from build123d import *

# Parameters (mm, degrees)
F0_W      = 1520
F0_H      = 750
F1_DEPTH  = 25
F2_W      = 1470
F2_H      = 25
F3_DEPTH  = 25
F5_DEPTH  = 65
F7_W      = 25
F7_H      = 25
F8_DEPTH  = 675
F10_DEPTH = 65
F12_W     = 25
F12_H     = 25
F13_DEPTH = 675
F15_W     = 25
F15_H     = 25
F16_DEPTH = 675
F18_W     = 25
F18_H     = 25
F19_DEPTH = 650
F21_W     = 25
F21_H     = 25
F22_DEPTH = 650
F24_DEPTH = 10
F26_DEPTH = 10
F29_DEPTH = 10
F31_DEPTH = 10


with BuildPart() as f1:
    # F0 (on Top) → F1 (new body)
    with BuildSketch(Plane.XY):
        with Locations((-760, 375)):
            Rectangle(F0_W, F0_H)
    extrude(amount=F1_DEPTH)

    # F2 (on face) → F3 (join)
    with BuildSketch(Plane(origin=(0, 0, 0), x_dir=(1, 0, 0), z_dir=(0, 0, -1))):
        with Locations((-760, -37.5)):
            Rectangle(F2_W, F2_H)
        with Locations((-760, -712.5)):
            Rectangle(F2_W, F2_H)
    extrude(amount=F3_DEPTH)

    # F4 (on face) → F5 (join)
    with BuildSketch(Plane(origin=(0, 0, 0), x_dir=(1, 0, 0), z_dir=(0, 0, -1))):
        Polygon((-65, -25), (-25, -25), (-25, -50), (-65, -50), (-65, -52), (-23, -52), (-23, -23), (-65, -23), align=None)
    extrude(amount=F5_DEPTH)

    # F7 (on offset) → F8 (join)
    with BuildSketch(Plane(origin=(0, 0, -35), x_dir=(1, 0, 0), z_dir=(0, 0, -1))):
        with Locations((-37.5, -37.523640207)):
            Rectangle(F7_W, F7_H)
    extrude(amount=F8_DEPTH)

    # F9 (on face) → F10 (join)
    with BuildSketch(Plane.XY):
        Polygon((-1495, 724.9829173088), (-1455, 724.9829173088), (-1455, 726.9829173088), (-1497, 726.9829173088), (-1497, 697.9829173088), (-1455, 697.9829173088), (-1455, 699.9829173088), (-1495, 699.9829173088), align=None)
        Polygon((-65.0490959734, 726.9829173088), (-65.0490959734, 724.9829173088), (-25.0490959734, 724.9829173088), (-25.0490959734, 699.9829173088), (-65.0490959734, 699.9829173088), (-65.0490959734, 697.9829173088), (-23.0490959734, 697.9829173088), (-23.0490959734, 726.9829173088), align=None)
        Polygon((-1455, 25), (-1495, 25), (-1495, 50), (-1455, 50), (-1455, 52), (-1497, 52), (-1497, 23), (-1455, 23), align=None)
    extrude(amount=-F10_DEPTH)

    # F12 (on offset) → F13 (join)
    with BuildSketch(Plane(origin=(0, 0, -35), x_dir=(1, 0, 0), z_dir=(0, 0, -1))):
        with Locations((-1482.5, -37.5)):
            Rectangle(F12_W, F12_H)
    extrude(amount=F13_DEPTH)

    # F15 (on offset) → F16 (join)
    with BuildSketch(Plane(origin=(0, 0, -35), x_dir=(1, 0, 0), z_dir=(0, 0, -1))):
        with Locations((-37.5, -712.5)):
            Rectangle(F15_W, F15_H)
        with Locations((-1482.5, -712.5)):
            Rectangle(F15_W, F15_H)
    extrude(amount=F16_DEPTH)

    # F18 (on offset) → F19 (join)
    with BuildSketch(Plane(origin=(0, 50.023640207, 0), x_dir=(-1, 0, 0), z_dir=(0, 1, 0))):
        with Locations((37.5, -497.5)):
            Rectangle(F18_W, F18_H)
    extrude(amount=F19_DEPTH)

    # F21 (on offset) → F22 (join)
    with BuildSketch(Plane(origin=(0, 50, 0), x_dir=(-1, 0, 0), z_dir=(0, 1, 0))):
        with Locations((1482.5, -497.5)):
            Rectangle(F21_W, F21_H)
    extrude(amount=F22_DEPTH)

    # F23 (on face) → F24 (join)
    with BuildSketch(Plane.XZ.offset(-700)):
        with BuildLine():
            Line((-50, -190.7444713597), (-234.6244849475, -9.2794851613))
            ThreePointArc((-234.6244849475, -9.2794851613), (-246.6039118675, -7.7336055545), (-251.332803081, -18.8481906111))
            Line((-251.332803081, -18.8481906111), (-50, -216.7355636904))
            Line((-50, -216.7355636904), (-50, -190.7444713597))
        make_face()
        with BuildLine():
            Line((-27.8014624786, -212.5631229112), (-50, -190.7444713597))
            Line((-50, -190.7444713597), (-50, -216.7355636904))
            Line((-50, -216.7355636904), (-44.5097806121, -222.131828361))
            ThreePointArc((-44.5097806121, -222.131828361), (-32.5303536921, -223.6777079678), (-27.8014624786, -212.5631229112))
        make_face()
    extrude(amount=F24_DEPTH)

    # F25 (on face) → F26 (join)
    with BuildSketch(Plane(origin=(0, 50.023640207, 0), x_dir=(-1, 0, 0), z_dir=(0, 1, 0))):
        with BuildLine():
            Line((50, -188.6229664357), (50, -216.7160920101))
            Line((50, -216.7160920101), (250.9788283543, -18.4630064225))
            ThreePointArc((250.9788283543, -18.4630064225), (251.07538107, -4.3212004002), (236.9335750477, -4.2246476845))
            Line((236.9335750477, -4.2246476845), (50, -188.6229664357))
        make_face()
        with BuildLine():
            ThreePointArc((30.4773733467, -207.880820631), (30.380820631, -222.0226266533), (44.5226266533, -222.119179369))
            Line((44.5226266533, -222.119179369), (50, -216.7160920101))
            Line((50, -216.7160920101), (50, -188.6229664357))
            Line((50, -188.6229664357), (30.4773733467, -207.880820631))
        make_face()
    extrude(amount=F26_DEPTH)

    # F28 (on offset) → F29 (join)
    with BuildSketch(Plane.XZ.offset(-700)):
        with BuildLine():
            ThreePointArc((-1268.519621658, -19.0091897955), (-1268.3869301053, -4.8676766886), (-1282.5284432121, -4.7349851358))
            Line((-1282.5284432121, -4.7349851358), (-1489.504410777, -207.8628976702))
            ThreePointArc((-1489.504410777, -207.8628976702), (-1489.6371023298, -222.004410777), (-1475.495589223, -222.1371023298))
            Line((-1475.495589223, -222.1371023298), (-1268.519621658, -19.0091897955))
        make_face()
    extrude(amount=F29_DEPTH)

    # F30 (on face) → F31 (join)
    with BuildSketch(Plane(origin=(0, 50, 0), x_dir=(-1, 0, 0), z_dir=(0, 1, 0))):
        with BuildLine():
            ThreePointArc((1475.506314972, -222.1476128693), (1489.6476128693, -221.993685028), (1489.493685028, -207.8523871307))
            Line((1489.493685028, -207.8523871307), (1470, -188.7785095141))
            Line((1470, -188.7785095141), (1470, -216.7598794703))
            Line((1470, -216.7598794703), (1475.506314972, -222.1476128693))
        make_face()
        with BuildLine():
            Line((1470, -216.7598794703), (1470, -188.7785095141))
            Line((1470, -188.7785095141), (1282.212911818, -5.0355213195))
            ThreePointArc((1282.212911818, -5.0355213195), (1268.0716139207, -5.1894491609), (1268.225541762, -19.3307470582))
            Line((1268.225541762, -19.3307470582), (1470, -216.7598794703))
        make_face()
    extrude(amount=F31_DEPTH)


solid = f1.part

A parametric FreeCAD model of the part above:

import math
import FreeCAD as App
import Part
import Sketcher
from FreeCAD import Vector


def add_polygon(sketch, points):
    """Adds a closed chain of lines whose ends are joined by coincident constraints."""
    first, n = sketch.GeometryCount, len(points)
    for a, b in zip(points, points[1:] + points[:1]):
        sketch.addGeometry(Part.LineSegment(App.Vector(*a, 0), App.Vector(*b, 0)), False)
    for i in range(n):
        sketch.addConstraint(Sketcher.Constraint("Coincident", first + i, 2, first + (i + 1) % n, 1))

doc = App.newDocument("Part")
body = doc.addObject("PartDesign::Body", "Body")

sketch1 = body.newObject("Sketcher::SketchObject", "Sketch")
sketch1.AttachmentSupport = (doc.getObject("XY_Plane"), [""])
sketch1.MapMode = "FlatFace"
add_polygon(sketch1, [(-1520, 750), (-1520, 0), (0, 0), (0, 750)])
sketch1.addConstraint([
    Sketcher.Constraint("Vertical", 0),
    Sketcher.Constraint("Horizontal", 1),
    Sketcher.Constraint("Vertical", 2),
    Sketcher.Constraint("Horizontal", 3),
    Sketcher.Constraint("Coincident", 1, 2, -1, 1),
    Sketcher.Constraint("DistanceX", 1, 1, 1, 2, 1520.0),
    Sketcher.Constraint("DistanceY", 0, 2, 0, 1, 750.0),
])
pad1 = body.newObject("PartDesign::Pad", "Pad")
pad1.Profile = sketch1
pad1.Length = 25

sketch2 = body.newObject("Sketcher::SketchObject", "Sketch001")
sketch2.AttachmentSupport = (doc.getObject("XY_Plane"), [""])
sketch2.MapMode = "FlatFace"
add_polygon(sketch2, [(-1495, 25), (-1495, 50), (-25, 50), (-25, 25)])
add_polygon(sketch2, [(-1495, 700), (-1495, 725), (-25, 725), (-25, 700)])
sketch2.addConstraint([
    Sketcher.Constraint("Vertical", 0),
    Sketcher.Constraint("Horizontal", 1),
    Sketcher.Constraint("Vertical", 2),
    Sketcher.Constraint("Horizontal", 3),
    Sketcher.Constraint("Vertical", 4),
    Sketcher.Constraint("Horizontal", 5),
    Sketcher.Constraint("Vertical", 6),
    Sketcher.Constraint("Horizontal", 7),
    Sketcher.Constraint("Vertical", 3, 2, 4, 2),
    Sketcher.Constraint("Vertical", 2, 2, 5, 2),
    Sketcher.Constraint("Equal", 2, 4),
    Sketcher.Constraint("DistanceX", 1, 1, 1, 2, 1470.0),
    Sketcher.Constraint("DistanceY", 0, 1, 0, 2, 25.0),
    Sketcher.Constraint("DistanceX", 0, 2, -1, 1, 1495.0),
    Sketcher.Constraint("DistanceY", -1, 1, 0, 2, 50.0),
    Sketcher.Constraint("DistanceY", -1, 1, 4, 2, 725.0),
])
pad2 = body.newObject("PartDesign::Pad", "Pad001")
pad2.Profile = sketch2
pad2.Length = 25
pad2.Reversed = True

sketch3 = body.newObject("Sketcher::SketchObject", "Sketch002")
sketch3.AttachmentSupport = (doc.getObject("XY_Plane"), [""])
sketch3.MapMode = "FlatFace"
add_polygon(sketch3, [(-65, 25), (-25, 25), (-25, 50), (-65, 50), (-65, 52), (-23, 52), (-23, 23), (-65, 23)])
sketch3.addConstraint([
    Sketcher.Constraint("Horizontal", 0),
    Sketcher.Constraint("Vertical", 1),
    Sketcher.Constraint("Horizontal", 2),
    Sketcher.Constraint("Vertical", 3),
    Sketcher.Constraint("Horizontal", 4),
    Sketcher.Constraint("Vertical", 5),
    Sketcher.Constraint("Horizontal", 6),
    Sketcher.Constraint("Vertical", 7),
    Sketcher.Constraint("Vertical", 3, 2, 6, 2),
    Sketcher.Constraint("Equal", 3, 7),
    Sketcher.Constraint("DistanceX", 0, 1, 0, 2, 40.0),
    Sketcher.Constraint("DistanceX", 4, 1, 4, 2, 42.0),
    Sketcher.Constraint("DistanceY", 1, 1, 1, 2, 25.0),
    Sketcher.Constraint("DistanceY", 3, 1, 3, 2, 2.0),
    Sketcher.Constraint("DistanceX", 0, 2, -1, 1, 25.0),
    Sketcher.Constraint("DistanceY", -1, 1, 0, 2, 25.0),
])
pad3 = body.newObject("PartDesign::Pad", "Pad002")
pad3.Profile = sketch3
pad3.Length = 65
pad3.Reversed = True

sketch4 = body.newObject("Sketcher::SketchObject", "Sketch003")
sketch4.AttachmentSupport = (doc.getObject("XY_Plane"), [""])
sketch4.MapMode = "FlatFace"
sketch4.AttachmentOffset = App.Placement(Vector(0, 0, -35), App.Rotation())
add_polygon(sketch4, [(-50, 25.02364), (-50, 50.02364), (-25, 50.02364), (-25, 25.02364)])
sketch4.addConstraint([
    Sketcher.Constraint("Vertical", 0),
    Sketcher.Constraint("Horizontal", 1),
    Sketcher.Constraint("Vertical", 2),
    Sketcher.Constraint("Horizontal", 3),
    Sketcher.Constraint("Equal", 3, 0),
    Sketcher.Constraint("DistanceX", 1, 1, 1, 2, 25.0),
    Sketcher.Constraint("DistanceX", 0, 2, -1, 1, 50.0),
    Sketcher.Constraint("DistanceY", -1, 1, 0, 2, 50.02364),
])
pad4 = body.newObject("PartDesign::Pad", "Pad003")
pad4.Profile = sketch4
pad4.Length = 675
pad4.Reversed = True

sketch5 = body.newObject("Sketcher::SketchObject", "Sketch004")
sketch5.AttachmentSupport = (doc.getObject("XY_Plane"), [""])
sketch5.MapMode = "FlatFace"
add_polygon(sketch5, [(-1495, 724.982917), (-1455, 724.982917), (-1455, 726.982917), (-1497, 726.982917), (-1497, 697.982917), (-1455, 697.982917), (-1455, 699.982917), (-1495, 699.982917)])
add_polygon(sketch5, [(-65.049096, 726.982917), (-65.049096, 724.982917), (-25.049096, 724.982917), (-25.049096, 699.982917), (-65.049096, 699.982917), (-65.049096, 697.982917), (-23.049096, 697.982917), (-23.049096, 726.982917)])
add_polygon(sketch5, [(-1455, 25), (-1495, 25), (-1495, 50), (-1455, 50), (-1455, 52), (-1497, 52), (-1497, 23), (-1455, 23)])
sketch5.addConstraint([
    Sketcher.Constraint("Horizontal", 0),
    Sketcher.Constraint("Vertical", 1),
    Sketcher.Constraint("Horizontal", 2),
    Sketcher.Constraint("Vertical", 3),
    Sketcher.Constraint("Horizontal", 4),
    Sketcher.Constraint("Vertical", 5),
    Sketcher.Constraint("Horizontal", 6),
    Sketcher.Constraint("Vertical", 7),
    Sketcher.Constraint("Vertical", 8),
    Sketcher.Constraint("Horizontal", 9),
    Sketcher.Constraint("Vertical", 10),
    Sketcher.Constraint("Horizontal", 11),
    Sketcher.Constraint("Vertical", 12),
    Sketcher.Constraint("Horizontal", 13),
    Sketcher.Constraint("Vertical", 14),
    Sketcher.Constraint("Horizontal", 15),
    Sketcher.Constraint("Horizontal", 16),
    Sketcher.Constraint("Vertical", 17),
    Sketcher.Constraint("Horizontal", 18),
    Sketcher.Constraint("Vertical", 19),
    Sketcher.Constraint("Horizontal", 20),
    Sketcher.Constraint("Vertical", 21),
    Sketcher.Constraint("Horizontal", 22),
    Sketcher.Constraint("Vertical", 23),
    Sketcher.Constraint("Horizontal", 7, 2, 8, 2),
    Sketcher.Constraint("Horizontal", 6, 2, 10, 2),
    Sketcher.Constraint("Horizontal", 4, 2, 12, 2),
    Sketcher.Constraint("Horizontal", 2, 2, 14, 2),
    Sketcher.Constraint("Vertical", 1, 2, 4, 2),
    Sketcher.Constraint("Vertical", 8, 2, 11, 2),
    Sketcher.Constraint("Vertical", 7, 2, 16, 2),
    Sketcher.Constraint("Vertical", 5, 2, 18, 2),
    Sketcher.Constraint("Vertical", 3, 2, 20, 2),
    Sketcher.Constraint("Vertical", 19, 2, 22, 2),
    Sketcher.Constraint("Equal", 6, 9),
    Sketcher.Constraint("Equal", 4, 13),
    Sketcher.Constraint("Equal", 1, 5),
    Sketcher.Constraint("Equal", 10, 17),
    Sketcher.Constraint("Equal", 12, 19),
    Sketcher.Constraint("Equal", 14, 21),
    Sketcher.Constraint("DistanceX", 0, 1, 0, 2, 40.0),
    Sketcher.Constraint("DistanceX", 2, 2, 2, 1, 42.0),
    Sketcher.Constraint("DistanceY", 1, 1, 1, 2, 2.0),
    Sketcher.Constraint("DistanceY", 3, 2, 3, 1, 29.0),
    Sketcher.Constraint("DistanceX", 0, 2, -1, 1, 1455.0),
    Sketcher.Constraint("DistanceY", -1, 1, 16, 2, 25.0),
    Sketcher.Constraint("DistanceY", -1, 1, 0, 2, 724.982917),
    Sketcher.Constraint("DistanceX", 8, 2, -1, 1, 65.049096),
])
pad5 = body.newObject("PartDesign::Pad", "Pad004")
pad5.Profile = sketch5
pad5.Length = 65
pad5.Reversed = True

sketch6 = body.newObject("Sketcher::SketchObject", "Sketch005")
sketch6.AttachmentSupport = (doc.getObject("XY_Plane"), [""])
sketch6.MapMode = "FlatFace"
sketch6.AttachmentOffset = App.Placement(Vector(0, 0, -35), App.Rotation())
add_polygon(sketch6, [(-1495, 25), (-1495, 50), (-1470, 50), (-1470, 25)])
sketch6.addConstraint([
    Sketcher.Constraint("Vertical", 0),
    Sketcher.Constraint("Horizontal", 1),
    Sketcher.Constraint("Vertical", 2),
    Sketcher.Constraint("Horizontal", 3),
    Sketcher.Constraint("Equal", 3, 0),
    Sketcher.Constraint("DistanceX", 1, 1, 1, 2, 25.0),
    Sketcher.Constraint("DistanceX", 0, 2, -1, 1, 1495.0),
    Sketcher.Constraint("DistanceY", -1, 1, 0, 2, 50.0),
])
pad6 = body.newObject("PartDesign::Pad", "Pad005")
pad6.Profile = sketch6
pad6.Length = 675
pad6.Reversed = True

sketch7 = body.newObject("Sketcher::SketchObject", "Sketch006")
sketch7.AttachmentSupport = (doc.getObject("XY_Plane"), [""])
sketch7.MapMode = "FlatFace"
sketch7.AttachmentOffset = App.Placement(Vector(0, 0, -35), App.Rotation())
add_polygon(sketch7, [(-50, 700), (-50, 725), (-25, 725), (-25, 700)])
add_polygon(sketch7, [(-1495, 700), (-1495, 725), (-1470, 725), (-1470, 700)])
sketch7.addConstraint([
    Sketcher.Constraint("Vertical", 0),
    Sketcher.Constraint("Horizontal", 1),
    Sketcher.Constraint("Vertical", 2),
    Sketcher.Constraint("Horizontal", 3),
    Sketcher.Constraint("Vertical", 4),
    Sketcher.Constraint("Horizontal", 5),
    Sketcher.Constraint("Vertical", 6),
    Sketcher.Constraint("Horizontal", 7),
    Sketcher.Constraint("Horizontal", 1, 2, 4, 2),
    Sketcher.Constraint("Horizontal", 3, 2, 6, 2),
    Sketcher.Constraint("Equal", 3, 5),
    Sketcher.Constraint("Equal", 7, 0),
    Sketcher.Constraint("DistanceX", 1, 1, 1, 2, 25.0),
    Sketcher.Constraint("DistanceX", 0, 2, -1, 1, 50.0),
    Sketcher.Constraint("DistanceY", -1, 1, 0, 2, 725.0),
    Sketcher.Constraint("DistanceX", 4, 2, -1, 1, 1495.0),
])
pad7 = body.newObject("PartDesign::Pad", "Pad006")
pad7.Profile = sketch7
pad7.Length = 675
pad7.Reversed = True

sketch8 = body.newObject("Sketcher::SketchObject", "Sketch007")
sketch8.AttachmentSupport = (doc.getObject("XZ_Plane"), [""])
sketch8.MapMode = "FlatFace"
sketch8.AttachmentOffset = App.Placement(Vector(0, 0, -50.02364), App.Rotation())
add_polygon(sketch8, [(-25, -485), (-25, -510), (-50, -510), (-50, -485)])
sketch8.addConstraint([
    Sketcher.Constraint("Vertical", 0),
    Sketcher.Constraint("Horizontal", 1),
    Sketcher.Constraint("Vertical", 2),
    Sketcher.Constraint("Horizontal", 3),
    Sketcher.Constraint("Equal", 3, 0),
    Sketcher.Constraint("DistanceX", 1, 2, 1, 1, 25.0),
    Sketcher.Constraint("DistanceX", 0, 2, -1, 1, 25.0),
    Sketcher.Constraint("DistanceY", 0, 2, -1, 1, 510.0),
])
pad8 = body.newObject("PartDesign::Pad", "Pad007")
pad8.Profile = sketch8
pad8.Length = 650
pad8.Reversed = True

sketch9 = body.newObject("Sketcher::SketchObject", "Sketch008")
sketch9.AttachmentSupport = (doc.getObject("XZ_Plane"), [""])
sketch9.MapMode = "FlatFace"
sketch9.AttachmentOffset = App.Placement(Vector(0, 0, -50), App.Rotation())
add_polygon(sketch9, [(-1470, -485), (-1470, -510), (-1495, -510), (-1495, -485)])
sketch9.addConstraint([
    Sketcher.Constraint("Vertical", 0),
    Sketcher.Constraint("Horizontal", 1),
    Sketcher.Constraint("Vertical", 2),
    Sketcher.Constraint("Horizontal", 3),
    Sketcher.Constraint("Equal", 3, 0),
    Sketcher.Constraint("DistanceX", 1, 2, 1, 1, 25.0),
    Sketcher.Constraint("DistanceX", 0, 2, -1, 1, 1470.0),
    Sketcher.Constraint("DistanceY", 0, 2, -1, 1, 510.0),
])
pad9 = body.newObject("PartDesign::Pad", "Pad008")
pad9.Profile = sketch9
pad9.Length = 650
pad9.Reversed = True

sketch10 = body.newObject("Sketcher::SketchObject", "Sketch009")
sketch10.AttachmentSupport = (doc.getObject("XZ_Plane"), [""])
sketch10.MapMode = "FlatFace"
sketch10.AttachmentOffset = App.Placement(Vector(0, 0, -700), App.Rotation())
sketch10.addGeometry([
    Part.ArcOfCircle(Part.Circle(Vector(-241.634266, -16.411314, 0), Vector(0, 0, 1), 10), math.radians(45.494473), math.radians(194.104295)),
    Part.LineSegment(Vector(-251.332803, -18.848191, 0), Vector(-44.509781, -222.131828, 0)),
    Part.ArcOfCircle(Part.Circle(Vector(-37.5, -215, 0), Vector(0, 0, 1), 10), math.radians(-134.505527), math.radians(14.104295)),
    Part.LineSegment(Vector(-27.801462, -212.563123, 0), Vector(-234.624485, -9.279485, 0)),
], False)
sketch10.addConstraint([
    Sketcher.Constraint("Coincident", 0, 2, 1, 1),
    Sketcher.Constraint("Tangent", 1, 2, 2, 1),
    Sketcher.Constraint("Coincident", 2, 2, 3, 1),
    Sketcher.Constraint("Tangent", 3, 2, 0, 1),
    Sketcher.Constraint("Equal", 0, 2),
    Sketcher.Constraint("Parallel", 1, 3),
    Sketcher.Constraint("Radius", 0, 10.0),
    Sketcher.Constraint("Distance", 1, 290.0),
    Sketcher.Constraint("DistanceY", 2, 3, -1, 1, 215.0),
    Sketcher.Constraint("DistanceX", 2, 3, -1, 1, 37.5),
    Sketcher.Constraint("DistanceY", 0, 2, -1, 1, 18.848191),
    Sketcher.Constraint("DistanceX", 1, 2, 2, 2, 16.708318),
])
pad10 = body.newObject("PartDesign::Pad", "Pad009")
pad10.Profile = sketch10
pad10.Length = 10

sketch11 = body.newObject("Sketcher::SketchObject", "Sketch010")
sketch11.AttachmentSupport = (doc.getObject("XZ_Plane"), [""])
sketch11.MapMode = "FlatFace"
sketch11.AttachmentOffset = App.Placement(Vector(0, 0, -50.02364), App.Rotation())
sketch11.addGeometry([
    Part.LineSegment(Vector(-50, -216.716092, 0), Vector(-250.978828, -18.463006, 0)),
    Part.ArcOfCircle(Part.Circle(Vector(-243.956202, -11.343827, 0), Vector(0, 0, 1), 10), math.radians(45.391179), math.radians(225.391179)),
    Part.LineSegment(Vector(-236.933575, -4.224648, 0), Vector(-30.477373, -207.880821, 0)),
    Part.ArcOfCircle(Part.Circle(Vector(-37.5, -215, 0), Vector(0, 0, 1), 10), math.radians(-134.608821), math.radians(45.391179)),
    Part.LineSegment(Vector(-44.522627, -222.119179, 0), Vector(-50, -216.716092, 0)),
], False)
sketch11.addConstraint([
    Sketcher.Constraint("Tangent", 0, 2, 1, 2),
    Sketcher.Constraint("Tangent", 1, 1, 2, 1),
    Sketcher.Constraint("Tangent", 2, 2, 3, 2),
    Sketcher.Constraint("Tangent", 3, 1, 4, 1),
    Sketcher.Constraint("Coincident", 4, 2, 0, 1),
    Sketcher.Constraint("Equal", 1, 3),
    Sketcher.Constraint("Parallel", 0, 2),
    Sketcher.Constraint("Radius", 1, 10.0),
    Sketcher.Constraint("Distance", 2, 290.0),
    Sketcher.Constraint("DistanceY", 3, 3, -1, 1, 215.0),
    Sketcher.Constraint("DistanceX", 4, 2, -1, 1, 50.0),
    Sketcher.Constraint("DistanceX", 3, 3, -1, 1, 37.5),
    Sketcher.Constraint("DistanceX", 1, 3, -1, 1, 243.956202),
])
pad11 = body.newObject("PartDesign::Pad", "Pad010")
pad11.Profile = sketch11
pad11.Length = 10
pad11.Reversed = True

sketch12 = body.newObject("Sketcher::SketchObject", "Sketch011")
sketch12.AttachmentSupport = (doc.getObject("XZ_Plane"), [""])
sketch12.MapMode = "FlatFace"
sketch12.AttachmentOffset = App.Placement(Vector(0, 0, -700), App.Rotation())
sketch12.addGeometry([
    Part.ArcOfCircle(Part.Circle(Vector(-1275.524032, -11.872087, 0), Vector(0, 0, 1), 10), math.radians(-45.537598), math.radians(134.462402)),
    Part.LineSegment(Vector(-1282.528443, -4.734985, 0), Vector(-1489.504411, -207.862898, 0)),
    Part.ArcOfCircle(Part.Circle(Vector(-1482.5, -215, 0), Vector(0, 0, 1), 10), math.radians(134.462402), math.radians(314.462402)),
    Part.LineSegment(Vector(-1475.495589, -222.137102, 0), Vector(-1268.519622, -19.00919, 0)),
], False)
sketch12.addConstraint([
    Sketcher.Constraint("Tangent", 0, 2, 1, 1),
    Sketcher.Constraint("Tangent", 1, 2, 2, 1),
    Sketcher.Constraint("Tangent", 2, 2, 3, 1),
    Sketcher.Constraint("Tangent", 3, 2, 0, 1),
    Sketcher.Constraint("Equal", 0, 2),
    Sketcher.Constraint("Radius", 0, 10.0),
    Sketcher.Constraint("Distance", 1, 290.0),
    Sketcher.Constraint("DistanceY", 2, 3, -1, 1, 215.0),
    Sketcher.Constraint("DistanceX", 2, 3, -1, 1, 1482.5),
    Sketcher.Constraint("DistanceX", 1, 2, -1, 1, 1489.504411),
])
pad12 = body.newObject("PartDesign::Pad", "Pad011")
pad12.Profile = sketch12
pad12.Length = 10

sketch13 = body.newObject("Sketcher::SketchObject", "Sketch012")
sketch13.AttachmentSupport = (doc.getObject("XZ_Plane"), [""])
sketch13.MapMode = "FlatFace"
sketch13.AttachmentOffset = App.Placement(Vector(0, 0, -50), App.Rotation())
sketch13.addGeometry([
    Part.ArcOfCircle(Part.Circle(Vector(-1482.5, -215, 0), Vector(0, 0, 1), 10), math.radians(134.376361), math.radians(314.376361)),
    Part.LineSegment(Vector(-1489.493685, -207.852387, 0), Vector(-1470, -188.77851, 0)),
    Part.LineSegment(Vector(-1470, -188.77851, 0), Vector(-1282.212912, -5.035521, 0)),
    Part.ArcOfCircle(Part.Circle(Vector(-1275.219227, -12.183134, 0), Vector(0, 0, 1), 10), math.radians(-45.623639), math.radians(134.376361)),
    Part.LineSegment(Vector(-1268.225542, -19.330747, 0), Vector(-1470, -216.759879, 0)),
    Part.LineSegment(Vector(-1470, -216.759879, 0), Vector(-1475.506315, -222.147613, 0)),
], False)
sketch13.addConstraint([
    Sketcher.Constraint("Tangent", 0, 1, 1, 1),
    Sketcher.Constraint("Coincident", 1, 2, 2, 1),
    Sketcher.Constraint("Tangent", 2, 2, 3, 2),
    Sketcher.Constraint("Tangent", 3, 1, 4, 1),
    Sketcher.Constraint("Coincident", 4, 2, 5, 1),
    Sketcher.Constraint("Tangent", 5, 2, 0, 2),
    Sketcher.Constraint("Equal", 0, 3),
    Sketcher.Constraint("Parallel", 1, 2),
    Sketcher.Constraint("Parallel", 2, 4),
    Sketcher.Constraint("Vertical", 1, 2, 4, 2),
    Sketcher.Constraint("Radius", 0, 10.0),
    Sketcher.Constraint("DistanceY", 0, 3, -1, 1, 215.0),
    Sketcher.Constraint("DistanceX", 1, 2, -1, 1, 1470.0),
    Sketcher.Constraint("DistanceX", 0, 3, -1, 1, 1482.5),
    Sketcher.Constraint("Distance", 1, 27.273001),
    Sketcher.Constraint("Distance", 2, 262.726999),
])
pad13 = body.newObject("PartDesign::Pad", "Pad012")
pad13.Profile = sketch13
pad13.Length = 10
pad13.Reversed = True

doc.recompute()
